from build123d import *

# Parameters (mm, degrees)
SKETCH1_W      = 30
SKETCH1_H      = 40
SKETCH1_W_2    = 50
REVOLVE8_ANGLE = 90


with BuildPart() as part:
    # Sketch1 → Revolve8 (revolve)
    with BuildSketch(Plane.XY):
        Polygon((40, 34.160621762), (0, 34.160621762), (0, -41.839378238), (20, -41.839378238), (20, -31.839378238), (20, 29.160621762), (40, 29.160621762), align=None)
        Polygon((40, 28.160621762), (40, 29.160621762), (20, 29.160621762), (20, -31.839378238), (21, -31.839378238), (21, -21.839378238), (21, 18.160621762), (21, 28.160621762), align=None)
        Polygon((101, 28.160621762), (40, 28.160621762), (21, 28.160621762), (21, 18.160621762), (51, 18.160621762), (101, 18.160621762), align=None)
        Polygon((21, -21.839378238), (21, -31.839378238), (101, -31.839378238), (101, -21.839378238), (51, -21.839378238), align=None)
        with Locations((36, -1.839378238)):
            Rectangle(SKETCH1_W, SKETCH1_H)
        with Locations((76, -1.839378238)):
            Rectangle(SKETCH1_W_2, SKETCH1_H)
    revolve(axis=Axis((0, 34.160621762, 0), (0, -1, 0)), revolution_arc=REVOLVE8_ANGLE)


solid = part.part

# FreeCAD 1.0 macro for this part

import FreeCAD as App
import Part
import Sketcher
Q = App.Units.Quantity


def add_polygon(sketch, points):
    """Adds a closed chain of lines whose ends are joined by coincident constraints."""
    first, n = sketch.GeometryCount, len(points)
    for a, b in zip(points, points[1:] + points[:1]):
        sketch.addGeometry(Part.LineSegment(App.Vector(*a, 0), App.Vector(*b, 0)), False)
    for i in range(n):
        sketch.addConstraint(Sketcher.Constraint("Coincident", first + i, 2, first + (i + 1) % n, 1))

doc = App.newDocument("Part")
body = doc.addObject("PartDesign::Body", "Body")

# Sketch on XY plane
sketch1 = body.newObject("Sketcher::SketchObject", "Sketch")
sketch1.AttachmentSupport = (doc.getObject("XY_Plane"), [""])
sketch1.MapMode = "FlatFace"
add_polygon(sketch1, [(40, 34), (0, 34), (0, -42), (20, -42), (20, -32), (101, -32), (101, 28), (40, 28)])  # lines 0-7
sketch1.addConstraint([
    Sketcher.Constraint("Horizontal", 0),
    Sketcher.Constraint("Vertical", 1),
    Sketcher.Constraint("Horizontal", 2),
    Sketcher.Constraint("Vertical", 3),
    Sketcher.Constraint("Horizontal", 4),
    Sketcher.Constraint("Vertical", 5),
    Sketcher.Constraint("Horizontal", 6),
    Sketcher.Constraint("Vertical", 7),
    Sketcher.Constraint("PointOnObject", 0, 2, -2),
    Sketcher.Constraint("DistanceX", 0, 2, 0, 1, Q("40 mm")),
    Sketcher.Constraint("DistanceX", 2, 1, 2, 2, Q("20 mm")),
    Sketcher.Constraint("DistanceX", 4, 1, 4, 2, Q("81 mm")),
    Sketcher.Constraint("DistanceY", 1, 2, 1, 1, Q("76 mm")),
    Sketcher.Constraint("DistanceY", 3, 1, 3, 2, Q("10 mm")),
    Sketcher.Constraint("DistanceY", 5, 1, 5, 2, Q("60 mm")),
    Sketcher.Constraint("DistanceY", -1, 1, 0, 2, Q("34.160622 mm")),
])
revolution = body.newObject("PartDesign::Revolution", "Revolution")
revolution.Profile = sketch1
revolution.ReferenceAxis = (sketch1, ["V_Axis"])
revolution.Angle = 90
revolution.Reversed = True

doc.recompute()
